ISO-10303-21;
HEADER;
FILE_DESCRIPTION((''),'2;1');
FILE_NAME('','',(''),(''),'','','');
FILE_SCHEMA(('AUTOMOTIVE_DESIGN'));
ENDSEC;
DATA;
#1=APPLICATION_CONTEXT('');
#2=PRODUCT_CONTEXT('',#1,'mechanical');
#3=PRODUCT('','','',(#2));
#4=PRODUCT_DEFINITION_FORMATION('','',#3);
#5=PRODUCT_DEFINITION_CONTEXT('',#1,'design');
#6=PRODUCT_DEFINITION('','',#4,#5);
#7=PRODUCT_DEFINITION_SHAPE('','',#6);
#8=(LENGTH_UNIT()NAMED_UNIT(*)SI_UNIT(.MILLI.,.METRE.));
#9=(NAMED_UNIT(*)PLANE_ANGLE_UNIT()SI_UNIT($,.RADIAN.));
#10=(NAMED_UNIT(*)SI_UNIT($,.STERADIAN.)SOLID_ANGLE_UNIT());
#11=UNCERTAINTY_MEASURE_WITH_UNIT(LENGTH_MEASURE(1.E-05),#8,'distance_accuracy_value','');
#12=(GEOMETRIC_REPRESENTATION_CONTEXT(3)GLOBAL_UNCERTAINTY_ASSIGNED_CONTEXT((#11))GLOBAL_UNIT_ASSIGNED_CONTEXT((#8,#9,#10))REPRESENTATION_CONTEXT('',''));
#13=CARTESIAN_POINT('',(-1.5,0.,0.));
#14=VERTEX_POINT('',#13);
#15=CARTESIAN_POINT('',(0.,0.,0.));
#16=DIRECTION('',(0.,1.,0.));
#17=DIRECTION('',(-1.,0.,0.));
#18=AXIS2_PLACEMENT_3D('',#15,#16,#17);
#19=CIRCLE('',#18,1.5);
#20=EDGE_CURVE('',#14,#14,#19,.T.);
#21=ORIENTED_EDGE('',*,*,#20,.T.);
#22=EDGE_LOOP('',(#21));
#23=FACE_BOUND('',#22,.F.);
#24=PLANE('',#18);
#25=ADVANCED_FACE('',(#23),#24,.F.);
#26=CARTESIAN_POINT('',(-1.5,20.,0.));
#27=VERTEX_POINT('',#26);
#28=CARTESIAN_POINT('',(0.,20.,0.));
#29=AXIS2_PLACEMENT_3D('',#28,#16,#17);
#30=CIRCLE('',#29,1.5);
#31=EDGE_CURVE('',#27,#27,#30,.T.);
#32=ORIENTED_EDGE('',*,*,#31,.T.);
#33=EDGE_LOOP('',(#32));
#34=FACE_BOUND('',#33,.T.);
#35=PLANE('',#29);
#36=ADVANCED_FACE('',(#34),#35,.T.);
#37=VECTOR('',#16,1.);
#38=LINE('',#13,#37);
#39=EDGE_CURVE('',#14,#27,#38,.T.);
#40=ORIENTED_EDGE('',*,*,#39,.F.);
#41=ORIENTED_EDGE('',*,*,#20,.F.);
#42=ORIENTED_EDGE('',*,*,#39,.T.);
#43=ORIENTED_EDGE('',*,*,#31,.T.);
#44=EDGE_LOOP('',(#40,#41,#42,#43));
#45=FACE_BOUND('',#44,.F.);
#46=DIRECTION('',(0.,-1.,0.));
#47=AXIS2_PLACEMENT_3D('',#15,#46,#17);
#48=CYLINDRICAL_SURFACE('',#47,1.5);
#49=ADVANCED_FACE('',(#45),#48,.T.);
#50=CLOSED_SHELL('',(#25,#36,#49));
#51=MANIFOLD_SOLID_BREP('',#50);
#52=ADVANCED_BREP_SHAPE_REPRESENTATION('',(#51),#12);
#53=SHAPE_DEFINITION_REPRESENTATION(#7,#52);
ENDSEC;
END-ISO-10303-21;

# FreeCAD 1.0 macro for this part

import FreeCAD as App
import Part
import Sketcher

V = App.Vector
Q = App.Units.Quantity

doc = App.newDocument("Part")
body = doc.addObject("PartDesign::Body", "Body")

# Sketch on XZ plane
sketch1 = doc.addObject("Sketcher::SketchObject", "Sketch")
body.addObject(sketch1)
sketch1.AttachmentSupport = (doc.XZ_Plane, [""])
sketch1.MapMode = "FlatFace"
sketch1.addGeometry(Part.Circle(V(0, 0, 0), V(0, 0, 1), 1.5), False)
sketch1.addConstraint(Sketcher.Constraint("Coincident", 0, 3, -1, 1))
sketch1.addConstraint(Sketcher.Constraint("Diameter", 0, Q("3 mm")))
pad1 = doc.addObject("PartDesign::Pad", "Pad")
body.addObject(pad1)
pad1.Profile = sketch1
pad1.Length = 20
pad1.Reversed = True

doc.recompute()
